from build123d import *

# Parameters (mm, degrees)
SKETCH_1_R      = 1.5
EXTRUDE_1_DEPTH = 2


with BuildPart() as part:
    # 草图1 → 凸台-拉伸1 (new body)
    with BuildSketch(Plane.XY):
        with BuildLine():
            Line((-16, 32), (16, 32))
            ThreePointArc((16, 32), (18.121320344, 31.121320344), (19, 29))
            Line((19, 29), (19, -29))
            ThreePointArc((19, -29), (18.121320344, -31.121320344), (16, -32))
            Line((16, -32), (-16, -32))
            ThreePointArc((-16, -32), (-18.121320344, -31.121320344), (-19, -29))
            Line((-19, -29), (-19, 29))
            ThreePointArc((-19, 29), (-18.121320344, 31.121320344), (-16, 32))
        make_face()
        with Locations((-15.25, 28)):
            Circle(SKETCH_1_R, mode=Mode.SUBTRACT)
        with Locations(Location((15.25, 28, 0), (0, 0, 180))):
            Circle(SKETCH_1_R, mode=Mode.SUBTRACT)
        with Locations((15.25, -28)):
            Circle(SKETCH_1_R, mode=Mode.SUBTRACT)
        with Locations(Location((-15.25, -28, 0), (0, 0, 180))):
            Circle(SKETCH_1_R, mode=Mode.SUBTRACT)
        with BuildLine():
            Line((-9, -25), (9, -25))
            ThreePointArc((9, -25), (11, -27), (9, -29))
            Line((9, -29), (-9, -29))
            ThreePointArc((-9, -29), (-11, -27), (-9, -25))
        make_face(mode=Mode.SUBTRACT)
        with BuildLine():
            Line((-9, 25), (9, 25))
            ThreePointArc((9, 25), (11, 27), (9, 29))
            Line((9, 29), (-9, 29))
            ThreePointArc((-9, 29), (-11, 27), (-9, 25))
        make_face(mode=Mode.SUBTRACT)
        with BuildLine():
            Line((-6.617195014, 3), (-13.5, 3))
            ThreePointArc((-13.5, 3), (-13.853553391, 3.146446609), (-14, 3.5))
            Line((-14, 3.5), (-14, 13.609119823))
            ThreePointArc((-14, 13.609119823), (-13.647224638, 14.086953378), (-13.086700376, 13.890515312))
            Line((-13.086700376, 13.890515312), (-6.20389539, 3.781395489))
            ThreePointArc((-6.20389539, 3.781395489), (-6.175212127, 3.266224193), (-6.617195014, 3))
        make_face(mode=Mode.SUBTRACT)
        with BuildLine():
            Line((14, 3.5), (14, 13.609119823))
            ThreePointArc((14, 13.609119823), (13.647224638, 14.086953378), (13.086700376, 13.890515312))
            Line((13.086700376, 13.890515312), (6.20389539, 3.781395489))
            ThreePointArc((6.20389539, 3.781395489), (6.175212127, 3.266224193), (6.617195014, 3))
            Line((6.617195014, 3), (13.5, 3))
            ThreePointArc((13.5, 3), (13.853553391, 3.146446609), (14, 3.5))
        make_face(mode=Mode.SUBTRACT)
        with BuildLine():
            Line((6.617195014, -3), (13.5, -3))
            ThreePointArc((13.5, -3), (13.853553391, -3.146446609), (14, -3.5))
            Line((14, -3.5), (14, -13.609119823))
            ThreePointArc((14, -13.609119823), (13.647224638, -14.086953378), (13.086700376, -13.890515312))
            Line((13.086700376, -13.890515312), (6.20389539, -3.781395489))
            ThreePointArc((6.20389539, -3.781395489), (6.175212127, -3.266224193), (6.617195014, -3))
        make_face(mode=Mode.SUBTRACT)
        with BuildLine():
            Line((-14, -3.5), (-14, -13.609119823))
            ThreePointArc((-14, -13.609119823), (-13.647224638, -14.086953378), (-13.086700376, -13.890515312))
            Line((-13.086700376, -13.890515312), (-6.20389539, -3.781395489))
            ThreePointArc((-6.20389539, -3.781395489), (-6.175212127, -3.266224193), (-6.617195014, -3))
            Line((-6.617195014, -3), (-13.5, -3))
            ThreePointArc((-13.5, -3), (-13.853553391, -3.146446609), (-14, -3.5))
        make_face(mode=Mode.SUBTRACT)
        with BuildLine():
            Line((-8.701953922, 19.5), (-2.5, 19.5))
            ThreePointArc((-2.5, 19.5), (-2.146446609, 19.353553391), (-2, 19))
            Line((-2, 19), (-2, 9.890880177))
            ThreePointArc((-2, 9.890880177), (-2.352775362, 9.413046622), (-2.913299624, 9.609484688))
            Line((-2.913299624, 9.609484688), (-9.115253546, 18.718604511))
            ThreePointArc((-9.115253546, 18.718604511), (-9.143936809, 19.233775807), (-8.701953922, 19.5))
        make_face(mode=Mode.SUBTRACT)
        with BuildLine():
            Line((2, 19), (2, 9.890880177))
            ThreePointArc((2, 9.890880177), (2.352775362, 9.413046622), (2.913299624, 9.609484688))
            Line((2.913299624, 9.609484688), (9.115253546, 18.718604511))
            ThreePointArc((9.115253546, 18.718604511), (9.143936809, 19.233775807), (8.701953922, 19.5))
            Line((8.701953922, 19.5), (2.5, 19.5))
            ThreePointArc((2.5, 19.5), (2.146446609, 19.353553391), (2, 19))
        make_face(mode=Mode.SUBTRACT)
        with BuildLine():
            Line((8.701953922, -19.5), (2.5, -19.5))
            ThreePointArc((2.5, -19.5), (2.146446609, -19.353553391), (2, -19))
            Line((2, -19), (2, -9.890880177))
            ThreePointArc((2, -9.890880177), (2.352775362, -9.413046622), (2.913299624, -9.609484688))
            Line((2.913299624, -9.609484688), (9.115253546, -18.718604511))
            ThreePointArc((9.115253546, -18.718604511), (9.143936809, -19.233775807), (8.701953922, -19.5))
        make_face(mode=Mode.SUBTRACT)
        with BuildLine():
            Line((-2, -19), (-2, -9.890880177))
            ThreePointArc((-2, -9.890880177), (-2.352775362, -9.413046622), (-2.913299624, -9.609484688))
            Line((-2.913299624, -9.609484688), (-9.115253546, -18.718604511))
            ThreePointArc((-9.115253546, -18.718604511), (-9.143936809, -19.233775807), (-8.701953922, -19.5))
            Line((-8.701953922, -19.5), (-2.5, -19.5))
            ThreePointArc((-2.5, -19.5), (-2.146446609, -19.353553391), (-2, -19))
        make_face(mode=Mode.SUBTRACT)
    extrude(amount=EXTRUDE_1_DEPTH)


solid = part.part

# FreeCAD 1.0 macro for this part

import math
import FreeCAD as App
import Part
import Sketcher

V = App.Vector
Q = App.Units.Quantity

doc = App.newDocument("Part")
params = doc.addObject("Spreadsheet::Sheet", "Params")
for row, (alias, value) in enumerate([
    ("sketch1_diameter", "3 mm"),
    ("sketch1_radius", "3 mm"),
    ("sketch1_radius2", "2 mm"),
    ("sketch1_radius3", "0.5 mm"),
    ("sketch1_width", "32 mm"),
    ("pad1_length", "2 mm"),
], start=1):
    params.set(f"A{row}", alias)
    params.set(f"B{row}", "=" + value)
    params.setAlias(f"B{row}", alias)

body = doc.addObject("PartDesign::Body", "Body")

# Sketch on XY plane
sketch1 = body.newObject("Sketcher::SketchObject", "Sketch")
sketch1.AttachmentSupport = (doc.getObject("XY_Plane"), [""])
sketch1.MapMode = "FlatFace"
sketch1.addGeometry(Part.LineSegment(V(16, 32, 0), V(-16, 32, 0)), False)
sketch1.addGeometry(Part.ArcOfCircle(Part.Circle(V(-16, 29, 0), V(0, 0, 1), 3), math.radians(90), math.radians(180)), False)
sketch1.addGeometry(Part.LineSegment(V(-19, 29, 0), V(-19, -29, 0)), False)
sketch1.addGeometry(Part.ArcOfCircle(Part.Circle(V(-16, -29, 0), V(0, 0, 1), 3), math.radians(180), math.radians(270)), False)
sketch1.addGeometry(Part.LineSegment(V(-16, -32, 0), V(16, -32, 0)), False)
sketch1.addGeometry(Part.ArcOfCircle(Part.Circle(V(16, -29, 0), V(0, 0, 1), 3), math.radians(-90), math.radians(0)), False)
sketch1.addGeometry(Part.LineSegment(V(19, -29, 0), V(19, 29, 0)), False)
sketch1.addGeometry(Part.ArcOfCircle(Part.Circle(V(16, 29, 0), V(0, 0, 1), 3), math.radians(0), math.radians(90)), False)
sketch1.addGeometry(Part.Circle(V(15.25, -28, 0), V(0, 0, 1), 1.5), False)
sketch1.addGeometry(Part.LineSegment(V(6.62, -3, 0), V(13.5, -3, 0)), False)
sketch1.addGeometry(Part.ArcOfCircle(Part.Circle(V(13.5, -3.5, 0), V(0, 0, 1), 0.5), math.radians(0), math.radians(90)), False)
sketch1.addGeometry(Part.LineSegment(V(14, -3.5, 0), V(14, -13.61, 0)), False)
sketch1.addGeometry(Part.ArcOfCircle(Part.Circle(V(13.5, -13.61, 0), V(0, 0, 1), 0.5), math.radians(-146), math.radians(0)), False)
sketch1.addGeometry(Part.LineSegment(V(13.09, -13.89, 0), V(6.2, -3.78, 0)), False)
sketch1.addGeometry(Part.ArcOfCircle(Part.Circle(V(6.62, -3.5, 0), V(0, 0, 1), 0.5), math.radians(90), math.radians(214)), False)
sketch1.addGeometry(Part.LineSegment(V(8.7, -19.5, 0), V(2.5, -19.5, 0)), False)
sketch1.addGeometry(Part.ArcOfCircle(Part.Circle(V(2.5, -19, 0), V(0, 0, 1), 0.5), math.radians(180), math.radians(270)), False)
sketch1.addGeometry(Part.LineSegment(V(2, -19, 0), V(2, -9.89, 0)), False)
sketch1.addGeometry(Part.ArcOfCircle(Part.Circle(V(2.5, -9.89, 0), V(0, 0, 1), 0.5), math.radians(34), math.radians(180)), False)
sketch1.addGeometry(Part.LineSegment(V(2.91, -9.61, 0), V(9.12, -18.72, 0)), False)
sketch1.addGeometry(Part.ArcOfCircle(Part.Circle(V(8.7, -19, 0), V(0, 0, 1), 0.5), math.radians(-90), math.radians(34)), False)
sketch1.addGeometry(Part.LineSegment(V(-9, -25, 0), V(9, -25, 0)), False)
sketch1.addGeometry(Part.ArcOfCircle(Part.Circle(V(9, -27, 0), V(0, 0, 1), 2), math.radians(-90), math.radians(90)), False)
sketch1.addGeometry(Part.LineSegment(V(9, -29, 0), V(-9, -29, 0)), False)
sketch1.addGeometry(Part.ArcOfCircle(Part.Circle(V(-9, -27, 0), V(0, 0, 1), 2), math.radians(90), math.radians(270)), False)
sketch1.addGeometry(Part.Circle(V(-15.25, -28, 0), V(0, 0, 1), 1.5), False)
sketch1.addGeometry(Part.ArcOfCircle(Part.Circle(V(-2.5, -19, 0), V(0, 0, 1), 0.5), math.radians(-90), math.radians(0)), False)
sketch1.addGeometry(Part.LineSegment(V(-2.5, -19.5, 0), V(-8.7, -19.5, 0)), False)
sketch1.addGeometry(Part.ArcOfCircle(Part.Circle(V(-8.7, -19, 0), V(0, 0, 1), 0.5), math.radians(146), math.radians(270)), False)
sketch1.addGeometry(Part.LineSegment(V(-9.12, -18.72, 0), V(-2.91, -9.61, 0)), False)
sketch1.addGeometry(Part.ArcOfCircle(Part.Circle(V(-2.5, -9.89, 0), V(0, 0, 1), 0.5), math.radians(0), math.radians(146)), False)
sketch1.addGeometry(Part.LineSegment(V(-2, -9.89, 0), V(-2, -19, 0)), False)
sketch1.addGeometry(Part.ArcOfCircle(Part.Circle(V(-13.5, -3.5, 0), V(0, 0, 1), 0.5), math.radians(90), math.radians(180)), False)
sketch1.addGeometry(Part.LineSegment(V(-13.5, -3, 0), V(-6.62, -3, 0)), False)
sketch1.addGeometry(Part.ArcOfCircle(Part.Circle(V(-6.62, -3.5, 0), V(0, 0, 1), 0.5), math.radians(-34), math.radians(90)), False)
sketch1.addGeometry(Part.LineSegment(V(-6.2, -3.78, 0), V(-13.09, -13.89, 0)), False)
sketch1.addGeometry(Part.ArcOfCircle(Part.Circle(V(-13.5, -13.61, 0), V(0, 0, 1), 0.5), math.radians(180), math.radians(326)), False)
sketch1.addGeometry(Part.LineSegment(V(-14, -13.61, 0), V(-14, -3.5, 0)), False)
sketch1.addGeometry(Part.ArcOfCircle(Part.Circle(V(13.5, 3.5, 0), V(0, 0, 1), 0.5), math.radians(-90), math.radians(0)), False)
sketch1.addGeometry(Part.LineSegment(V(13.5, 3, 0), V(6.62, 3, 0)), False)
sketch1.addGeometry(Part.ArcOfCircle(Part.Circle(V(6.62, 3.5, 0), V(0, 0, 1), 0.5), math.radians(146), math.radians(270)), False)
sketch1.addGeometry(Part.LineSegment(V(6.2, 3.78, 0), V(13.09, 13.89, 0)), False)
sketch1.addGeometry(Part.ArcOfCircle(Part.Circle(V(13.5, 13.61, 0), V(0, 0, 1), 0.5), math.radians(0), math.radians(146)), False)
sketch1.addGeometry(Part.LineSegment(V(14, 13.61, 0), V(14, 3.5, 0)), False)
sketch1.addGeometry(Part.ArcOfCircle(Part.Circle(V(2.5, 19, 0), V(0, 0, 1), 0.5), math.radians(90), math.radians(180)), False)
sketch1.addGeometry(Part.LineSegment(V(2.5, 19.5, 0), V(8.7, 19.5, 0)), False)
sketch1.addGeometry(Part.ArcOfCircle(Part.Circle(V(8.7, 19, 0), V(0, 0, 1), 0.5), math.radians(-34), math.radians(90)), False)
sketch1.addGeometry(Part.LineSegment(V(9.12, 18.72, 0), V(2.91, 9.61, 0)), False)
sketch1.addGeometry(Part.ArcOfCircle(Part.Circle(V(2.5, 9.89, 0), V(0, 0, 1), 0.5), math.radians(180), math.radians(326)), False)
sketch1.addGeometry(Part.LineSegment(V(2, 9.89, 0), V(2, 19, 0)), False)
sketch1.addGeometry(Part.Circle(V(15.25, 28, 0), V(0, 0, 1), 1.5), False)
sketch1.addGeometry(Part.LineSegment(V(-8.7, 19.5, 0), V(-2.5, 19.5, 0)), False)
sketch1.addGeometry(Part.ArcOfCircle(Part.Circle(V(-2.5, 19, 0), V(0, 0, 1), 0.5), math.radians(0), math.radians(90)), False)
sketch1.addGeometry(Part.LineSegment(V(-2, 19, 0), V(-2, 9.89, 0)), False)
sketch1.addGeometry(Part.ArcOfCircle(Part.Circle(V(-2.5, 9.89, 0), V(0, 0, 1), 0.5), math.radians(-146), math.radians(0)), False)
sketch1.addGeometry(Part.LineSegment(V(-2.91, 9.61, 0), V(-9.12, 18.72, 0)), False)
sketch1.addGeometry(Part.ArcOfCircle(Part.Circle(V(-8.7, 19, 0), V(0, 0, 1), 0.5), math.radians(90), math.radians(214)), False)
sketch1.addGeometry(Part.LineSegment(V(-6.62, 3, 0), V(-13.5, 3, 0)), False)
sketch1.addGeometry(Part.ArcOfCircle(Part.Circle(V(-13.5, 3.5, 0), V(0, 0, 1), 0.5), math.radians(180), math.radians(270)), False)
sketch1.addGeometry(Part.LineSegment(V(-14, 3.5, 0), V(-14, 13.61, 0)), False)
sketch1.addGeometry(Part.ArcOfCircle(Part.Circle(V(-13.5, 13.61, 0), V(0, 0, 1), 0.5), math.radians(34), math.radians(180)), False)
sketch1.addGeometry(Part.LineSegment(V(-13.09, 13.89, 0), V(-6.2, 3.78, 0)), False)
sketch1.addGeometry(Part.ArcOfCircle(Part.Circle(V(-6.62, 3.5, 0), V(0, 0, 1), 0.5), math.radians(-90), math.radians(34)), False)
sketch1.addGeometry(Part.ArcOfCircle(Part.Circle(V(-9, 27, 0), V(0, 0, 1), 2), math.radians(90), math.radians(270)), False)
sketch1.addGeometry(Part.LineSegment(V(-9, 29, 0), V(9, 29, 0)), False)
sketch1.addGeometry(Part.ArcOfCircle(Part.Circle(V(9, 27, 0), V(0, 0, 1), 2), math.radians(-90), math.radians(90)), False)
sketch1.addGeometry(Part.LineSegment(V(9, 25, 0), V(-9, 25, 0)), False)
sketch1.addGeometry(Part.Circle(V(-15.25, 28, 0), V(0, 0, 1), 1.5), False)
sketch1.addConstraint(Sketcher.Constraint("Tangent", 0, 2, 1, 1))
sketch1.addConstraint(Sketcher.Constraint("Tangent", 1, 2, 2, 1))
sketch1.addConstraint(Sketcher.Constraint("Tangent", 2, 2, 3, 1))
sketch1.addConstraint(Sketcher.Constraint("Tangent", 3, 2, 4, 1))
sketch1.addConstraint(Sketcher.Constraint("Tangent", 4, 2, 5, 1))
sketch1.addConstraint(Sketcher.Constraint("Tangent", 5, 2, 6, 1))
sketch1.addConstraint(Sketcher.Constraint("Tangent", 6, 2, 7, 1))
sketch1.addConstraint(Sketcher.Constraint("Tangent", 7, 2, 0, 1))
sketch1.addConstraint(Sketcher.Constraint("Tangent", 9, 2, 10, 2))
sketch1.addConstraint(Sketcher.Constraint("Tangent", 10, 1, 11, 1))
sketch1.addConstraint(Sketcher.Constraint("Tangent", 11, 2, 12, 2))
sketch1.addConstraint(Sketcher.Constraint("Tangent", 12, 1, 13, 1))
sketch1.addConstraint(Sketcher.Constraint("Tangent", 13, 2, 14, 2))
sketch1.addConstraint(Sketcher.Constraint("Tangent", 14, 1, 9, 1))
sketch1.addConstraint(Sketcher.Constraint("Tangent", 15, 2, 16, 2))
sketch1.addConstraint(Sketcher.Constraint("Tangent", 16, 1, 17, 1))
sketch1.addConstraint(Sketcher.Constraint("Tangent", 17, 2, 18, 2))
sketch1.addConstraint(Sketcher.Constraint("Tangent", 18, 1, 19, 1))
sketch1.addConstraint(Sketcher.Constraint("Tangent", 19, 2, 20, 2))
sketch1.addConstraint(Sketcher.Constraint("Tangent", 20, 1, 15, 1))
sketch1.addConstraint(Sketcher.Constraint("Tangent", 21, 2, 22, 2))
sketch1.addConstraint(Sketcher.Constraint("Tangent", 22, 1, 23, 1))
sketch1.addConstraint(Sketcher.Constraint("Tangent", 23, 2, 24, 2))
sketch1.addConstraint(Sketcher.Constraint("Tangent", 24, 1, 21, 1))
sketch1.addConstraint(Sketcher.Constraint("Tangent", 26, 1, 27, 1))
sketch1.addConstraint(Sketcher.Constraint("Tangent", 27, 2, 28, 2))
sketch1.addConstraint(Sketcher.Constraint("Tangent", 28, 1, 29, 1))
sketch1.addConstraint(Sketcher.Constraint("Tangent", 29, 2, 30, 2))
sketch1.addConstraint(Sketcher.Constraint("Tangent", 30, 1, 31, 1))
sketch1.addConstraint(Sketcher.Constraint("Tangent", 31, 2, 26, 2))
sketch1.addConstraint(Sketcher.Constraint("Tangent", 32, 1, 33, 1))
sketch1.addConstraint(Sketcher.Constraint("Tangent", 33, 2, 34, 2))
sketch1.addConstraint(Sketcher.Constraint("Tangent", 34, 1, 35, 1))
sketch1.addConstraint(Sketcher.Constraint("Tangent", 35, 2, 36, 2))
sketch1.addConstraint(Sketcher.Constraint("Tangent", 36, 1, 37, 1))
sketch1.addConstraint(Sketcher.Constraint("Tangent", 37, 2, 32, 2))
sketch1.addConstraint(Sketcher.Constraint("Tangent", 38, 1, 39, 1))
sketch1.addConstraint(Sketcher.Constraint("Tangent", 39, 2, 40, 2))
sketch1.addConstraint(Sketcher.Constraint("Tangent", 40, 1, 41, 1))
sketch1.addConstraint(Sketcher.Constraint("Tangent", 41, 2, 42, 2))
sketch1.addConstraint(Sketcher.Constraint("Tangent", 42, 1, 43, 1))
sketch1.addConstraint(Sketcher.Constraint("Tangent", 43, 2, 38, 2))
sketch1.addConstraint(Sketcher.Constraint("Tangent", 44, 1, 45, 1))
sketch1.addConstraint(Sketcher.Constraint("Tangent", 45, 2, 46, 2))
sketch1.addConstraint(Sketcher.Constraint("Tangent", 46, 1, 47, 1))
sketch1.addConstraint(Sketcher.Constraint("Tangent", 47, 2, 48, 2))
sketch1.addConstraint(Sketcher.Constraint("Tangent", 48, 1, 49, 1))
sketch1.addConstraint(Sketcher.Constraint("Tangent", 49, 2, 44, 2))
sketch1.addConstraint(Sketcher.Constraint("Tangent", 51, 2, 52, 2))
sketch1.addConstraint(Sketcher.Constraint("Tangent", 52, 1, 53, 1))
sketch1.addConstraint(Sketcher.Constraint("Tangent", 53, 2, 54, 2))
sketch1.addConstraint(Sketcher.Constraint("Tangent", 54, 1, 55, 1))
sketch1.addConstraint(Sketcher.Constraint("Tangent", 55, 2, 56, 2))
sketch1.addConstraint(Sketcher.Constraint("Tangent", 56, 1, 51, 1))
sketch1.addConstraint(Sketcher.Constraint("Tangent", 57, 2, 58, 2))
sketch1.addConstraint(Sketcher.Constraint("Tangent", 58, 1, 59, 1))
sketch1.addConstraint(Sketcher.Constraint("Tangent", 59, 2, 60, 2))
sketch1.addConstraint(Sketcher.Constraint("Tangent", 60, 1, 61, 1))
sketch1.addConstraint(Sketcher.Constraint("Tangent", 61, 2, 62, 2))
sketch1.addConstraint(Sketcher.Constraint("Tangent", 62, 1, 57, 1))
sketch1.addConstraint(Sketcher.Constraint("Tangent", 63, 1, 64, 1))
sketch1.addConstraint(Sketcher.Constraint("Tangent", 64, 2, 65, 2))
sketch1.addConstraint(Sketcher.Constraint("Tangent", 65, 1, 66, 1))
sketch1.addConstraint(Sketcher.Constraint("Tangent", 66, 2, 63, 2))
sketch1.addConstraint(Sketcher.Constraint("Horizontal", 0))
sketch1.addConstraint(Sketcher.Constraint("Vertical", 2))
sketch1.addConstraint(Sketcher.Constraint("Horizontal", 4))
sketch1.addConstraint(Sketcher.Constraint("Vertical", 6))
sketch1.addConstraint(Sketcher.Constraint("Horizontal", 9))
sketch1.addConstraint(Sketcher.Constraint("Vertical", 11))
sketch1.addConstraint(Sketcher.Constraint("Horizontal", 15))
sketch1.addConstraint(Sketcher.Constraint("Vertical", 17))
sketch1.addConstraint(Sketcher.Constraint("Horizontal", 21))
sketch1.addConstraint(Sketcher.Constraint("Horizontal", 23))
sketch1.addConstraint(Sketcher.Constraint("Horizontal", 27))
sketch1.addConstraint(Sketcher.Constraint("Vertical", 31))
sketch1.addConstraint(Sketcher.Constraint("Horizontal", 33))
sketch1.addConstraint(Sketcher.Constraint("Vertical", 37))
sketch1.addConstraint(Sketcher.Constraint("Horizontal", 39))
sketch1.addConstraint(Sketcher.Constraint("Vertical", 43))
sketch1.addConstraint(Sketcher.Constraint("Horizontal", 45))
sketch1.addConstraint(Sketcher.Constraint("Vertical", 49))
sketch1.addConstraint(Sketcher.Constraint("Horizontal", 51))
sketch1.addConstraint(Sketcher.Constraint("Vertical", 53))
sketch1.addConstraint(Sketcher.Constraint("Horizontal", 57))
sketch1.addConstraint(Sketcher.Constraint("Vertical", 59))
sketch1.addConstraint(Sketcher.Constraint("Horizontal", 64))
sketch1.addConstraint(Sketcher.Constraint("Horizontal", 66))
sketch1.addConstraint(Sketcher.Constraint("Equal", 1, 3))
sketch1.addConstraint(Sketcher.Constraint("Equal", 3, 5))
sketch1.addConstraint(Sketcher.Constraint("Equal", 5, 7))
sketch1.addConstraint(Sketcher.Constraint("Equal", 10, 12))
sketch1.addConstraint(Sketcher.Constraint("Equal", 12, 14))
sketch1.addConstraint(Sketcher.Constraint("Equal", 14, 16))
sketch1.addConstraint(Sketcher.Constraint("Equal", 16, 18))
sketch1.addConstraint(Sketcher.Constraint("Equal", 18, 20))
sketch1.addConstraint(Sketcher.Constraint("Equal", 8, 25))
sketch1.addConstraint(Sketcher.Constraint("Equal", 20, 26))
sketch1.addConstraint(Sketcher.Constraint("Equal", 26, 28))
sketch1.addConstraint(Sketcher.Constraint("Equal", 28, 30))
sketch1.addConstraint(Sketcher.Constraint("Equal", 30, 32))
sketch1.addConstraint(Sketcher.Constraint("Equal", 32, 34))
sketch1.addConstraint(Sketcher.Constraint("Equal", 34, 36))
sketch1.addConstraint(Sketcher.Constraint("Equal", 36, 38))
sketch1.addConstraint(Sketcher.Constraint("Equal", 38, 40))
sketch1.addConstraint(Sketcher.Constraint("Equal", 40, 42))
sketch1.addConstraint(Sketcher.Constraint("Equal", 42, 44))
sketch1.addConstraint(Sketcher.Constraint("Equal", 44, 46))
sketch1.addConstraint(Sketcher.Constraint("Equal", 46, 48))
sketch1.addConstraint(Sketcher.Constraint("Equal", 25, 50))
sketch1.addConstraint(Sketcher.Constraint("Equal", 48, 52))
sketch1.addConstraint(Sketcher.Constraint("Equal", 52, 54))
sketch1.addConstraint(Sketcher.Constraint("Equal", 54, 56))
sketch1.addConstraint(Sketcher.Constraint("Equal", 56, 58))
sketch1.addConstraint(Sketcher.Constraint("Equal", 58, 60))
sketch1.addConstraint(Sketcher.Constraint("Equal", 60, 62))
sketch1.addConstraint(Sketcher.Constraint("Equal", 24, 63))
sketch1.addConstraint(Sketcher.Constraint("Equal", 50, 67))
sketch1.addConstraint(Sketcher.Constraint("Symmetric", 1, 3, 5, 3, -1, 1))
sketch1.addConstraint(Sketcher.Constraint("Symmetric", 32, 3, 38, 3, -1, 1))
sketch1.addConstraint(Sketcher.Constraint("Symmetric", 26, 3, 44, 3, -1, 1))
sketch1.addConstraint(Sketcher.Constraint("Symmetric", 25, 3, 50, 3, -1, 1))
sketch1.addConstraint(Sketcher.Constraint("Symmetric", 16, 3, 52, 3, -1, 1))
sketch1.addConstraint(Sketcher.Constraint("Symmetric", 10, 3, 58, 3, -1, 1))
sketch1.addConstraint(Sketcher.Constraint("Symmetric", 22, 3, 63, 3, -1, 1))
sketch1.addConstraint(Sketcher.Constraint("Symmetric", 8, 3, 67, 3, -1, 1))
sketch1.addConstraint(Sketcher.Constraint("Symmetric", 34, 1, 40, 1, -1, 1))
sketch1.addConstraint(Sketcher.Constraint("Symmetric", 28, 1, 46, 1, -1, 1))
sketch1.addConstraint(Sketcher.Constraint("Symmetric", 18, 1, 54, 1, -1, 1))
sketch1.addConstraint(Sketcher.Constraint("Symmetric", 12, 1, 60, 1, -1, 1))
sketch1.addConstraint(Sketcher.Constraint("Symmetric", 8, 3, 25, 3, -2))
sketch1.addConstraint(Sketcher.Constraint("Symmetric", 16, 3, 26, 3, -2))
sketch1.addConstraint(Sketcher.Constraint("Symmetric", 10, 3, 32, 3, -2))
sketch1.addConstraint(Sketcher.Constraint("Symmetric", 19, 2, 28, 1, -2))
sketch1.addConstraint(Sketcher.Constraint("Symmetric", 13, 2, 34, 1, -2))
sketch1.addConstraint(Sketcher.Constraint("Parallel", 13, 19))
sketch1.addConstraint(Sketcher.Constraint("Horizontal", 5, 2, 22, 1))
sketch1.addConstraint(Sketcher.Constraint("Vertical", 24, 3, 63, 3))
sketch1.addConstraint(Sketcher.Constraint("Vertical", 22, 3, 65, 3))
sketch1.addConstraint(Sketcher.Constraint("Diameter", 8, Q("3 mm")))
sketch1.addConstraint(Sketcher.Constraint("Radius", 1, Q("3 mm")))
sketch1.addConstraint(Sketcher.Constraint("Radius", 22, Q("2 mm")))
sketch1.addConstraint(Sketcher.Constraint("Radius", 10, Q("0.5 mm")))
sketch1.addConstraint(Sketcher.Constraint("DistanceX", 0, 2, 0, 1, Q("32 mm")))
sketch1.addConstraint(Sketcher.Constraint("DistanceX", 21, 1, 21, 2, Q("18 mm")))
sketch1.addConstraint(Sketcher.Constraint("DistanceY", 2, 2, 2, 1, Q("58 mm")))
sketch1.addConstraint(Sketcher.Constraint("DistanceY", 8, 3, -1, 1, Q("28 mm")))
sketch1.addConstraint(Sketcher.Constraint("DistanceY", 16, 3, -1, 1, Q("19 mm")))
sketch1.addConstraint(Sketcher.Constraint("DistanceY", 9, 2, -1, 1, Q("3 mm")))
sketch1.addConstraint(Sketcher.Constraint("DistanceX", -1, 1, 10, 1, Q("14 mm")))
sketch1.addConstraint(Sketcher.Constraint("DistanceX", -1, 1, 16, 1, Q("2 mm")))
sketch1.addConstraint(Sketcher.Constraint("DistanceX", -1, 1, 8, 3, Q("15.25 mm")))
sketch1.addConstraint(Sketcher.Constraint("DistanceY", 11, 2, 11, 1, Q("10.10912 mm")))
sketch1.addConstraint(Sketcher.Constraint("DistanceY", 17, 1, 17, 2, Q("9.10912 mm")))
sketch1.addConstraint(Sketcher.Constraint("DistanceX", -1, 1, 12, 1, Q("13.0867 mm")))
sketch1.setExpression("Constraints[139]", "Params.sketch1_diameter")
sketch1.setExpression("Constraints[140]", "Params.sketch1_radius")
sketch1.setExpression("Constraints[141]", "Params.sketch1_radius2")
sketch1.setExpression("Constraints[142]", "Params.sketch1_radius3")
sketch1.setExpression("Constraints[143]", "Params.sketch1_width")
pad1 = body.newObject("PartDesign::Pad", "Pad")
pad1.Profile = sketch1
pad1.setExpression("Length", "Params.pad1_length")

doc.recompute()
